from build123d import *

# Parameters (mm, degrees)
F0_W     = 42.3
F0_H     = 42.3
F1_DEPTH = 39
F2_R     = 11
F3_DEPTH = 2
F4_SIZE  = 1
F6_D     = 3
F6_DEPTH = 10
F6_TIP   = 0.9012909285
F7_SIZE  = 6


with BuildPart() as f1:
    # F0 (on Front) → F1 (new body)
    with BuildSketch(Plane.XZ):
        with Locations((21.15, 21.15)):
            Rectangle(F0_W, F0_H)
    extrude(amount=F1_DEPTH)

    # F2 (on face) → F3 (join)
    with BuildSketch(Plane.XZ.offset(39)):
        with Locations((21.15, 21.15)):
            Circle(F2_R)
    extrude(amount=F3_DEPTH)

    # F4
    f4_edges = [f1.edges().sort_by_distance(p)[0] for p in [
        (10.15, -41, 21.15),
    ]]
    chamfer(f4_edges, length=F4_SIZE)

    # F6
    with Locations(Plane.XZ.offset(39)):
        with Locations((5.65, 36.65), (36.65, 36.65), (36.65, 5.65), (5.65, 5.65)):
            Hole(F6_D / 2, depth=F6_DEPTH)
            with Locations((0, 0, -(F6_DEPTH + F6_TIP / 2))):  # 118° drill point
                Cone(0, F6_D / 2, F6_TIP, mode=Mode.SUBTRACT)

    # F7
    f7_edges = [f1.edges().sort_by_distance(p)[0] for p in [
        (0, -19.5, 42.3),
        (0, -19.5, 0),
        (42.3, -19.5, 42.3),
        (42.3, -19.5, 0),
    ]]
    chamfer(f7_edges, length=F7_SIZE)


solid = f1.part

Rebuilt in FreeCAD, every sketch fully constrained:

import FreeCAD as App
import Part
import Sketcher


def edges_at(feature, points):
    """Names of the edges that pass closest to the given points."""
    edges = feature.Shape.Edges
    near = lambda p: min(range(len(edges)), key=lambda i: edges[i].distToShape(Part.Vertex(*p))[0])
    return sorted({f"Edge{near(p) + 1}" for p in points})

doc = App.newDocument("Part")
body = doc.addObject("PartDesign::Body", "Body")

# Sketch on XZ plane
sketch1 = body.newObject("Sketcher::SketchObject", "Sketch")
sketch1.AttachmentSupport = (doc.getObject("XZ_Plane"), [""])
sketch1.MapMode = "FlatFace"
sketch1.addGeometry([
    Part.LineSegment(App.Vector(0, 42, 0), App.Vector(0, 0, 0)),
    Part.LineSegment(App.Vector(0, 0, 0), App.Vector(42, 0, 0)),
    Part.LineSegment(App.Vector(42, 0, 0), App.Vector(42, 42, 0)),
    Part.LineSegment(App.Vector(42, 42, 0), App.Vector(0, 42, 0)),
], False)
sketch1.addConstraint([
    Sketcher.Constraint("Coincident", 0, 2, 1, 1),
    Sketcher.Constraint("Coincident", 1, 2, 2, 1),
    Sketcher.Constraint("Coincident", 2, 2, 3, 1),
    Sketcher.Constraint("Coincident", 3, 2, 0, 1),
    Sketcher.Constraint("Vertical", 0),
    Sketcher.Constraint("Horizontal", 1),
    Sketcher.Constraint("Vertical", 2),
    Sketcher.Constraint("Horizontal", 3),
    Sketcher.Constraint("Coincident", 0, 2, -1, 1),
    Sketcher.Constraint("Equal", 3, 0),
    Sketcher.Constraint("DistanceX", 1, 1, 1, 2, 42.3),
])
pad1 = body.newObject("PartDesign::Pad", "Pad")
pad1.Profile = sketch1
pad1.Length = 39

# Sketch on XZ plane
sketch2 = body.newObject("Sketcher::SketchObject", "Sketch001")
sketch2.AttachmentSupport = (doc.getObject("XZ_Plane"), [""])
sketch2.MapMode = "FlatFace"
sketch2.AttachmentOffset = App.Placement(App.Vector(0, 0, 39), App.Rotation())
sketch2.addGeometry(Part.Circle(App.Vector(21, 21, 0), App.Vector(0, 0, 1), 11), False)
sketch2.addConstraint([
    Sketcher.Constraint("Diameter", 0, 22.0),
    Sketcher.Constraint("DistanceX", -1, 1, 0, 3, 21.15),
    Sketcher.Constraint("DistanceY", -1, 1, 0, 3, 21.15),
])
pad2 = body.newObject("PartDesign::Pad", "Pad001")
pad2.Profile = sketch2
pad2.Length = 2
doc.recompute()

chamfer = body.newObject("PartDesign::Chamfer", "Chamfer")
chamfer.Base = (pad2, edges_at(pad2, [(10.15, -41, 21.15)]))
chamfer.Size = 1

# Sketch on XZ plane
sketch3 = body.newObject("Sketcher::SketchObject", "Sketch002")
sketch3.AttachmentSupport = (doc.getObject("XZ_Plane"), [""])
sketch3.MapMode = "FlatFace"
sketch3.AttachmentOffset = App.Placement(App.Vector(0, 0, 39), App.Rotation())
sketch3.addGeometry([
    Part.Circle(App.Vector(5.7, 36.6, 0), App.Vector(0, 0, 1), 1.5),
    Part.Circle(App.Vector(36.6, 36.6, 0), App.Vector(0, 0, 1), 1.5),
    Part.Circle(App.Vector(36.6, 5.7, 0), App.Vector(0, 0, 1), 1.5),
    Part.Circle(App.Vector(5.7, 5.7, 0), App.Vector(0, 0, 1), 1.5),
], False)
sketch3.addConstraint([
    Sketcher.Constraint("Equal", 0, 1),
    Sketcher.Constraint("Equal", 1, 2),
    Sketcher.Constraint("Equal", 2, 3),
    Sketcher.Constraint("Horizontal", 0, 3, 1, 3),
    Sketcher.Constraint("Horizontal", 2, 3, 3, 3),
    Sketcher.Constraint("Vertical", 1, 3, 2, 3),
    Sketcher.Constraint("Vertical", 0, 3, 3, 3),
    Sketcher.Constraint("Diameter", 0, 3.0),
    Sketcher.Constraint("DistanceX", 0, 3, 1, 3, 31.0),
    Sketcher.Constraint("DistanceY", 2, 3, 1, 3, 31.0),
    Sketcher.Constraint("DistanceX", -1, 1, 0, 3, 5.65),
    Sketcher.Constraint("DistanceY", -1, 1, 0, 3, 36.65),
])
doc.recompute()
hole = body.newObject("PartDesign::Hole", "Hole")
hole.Profile = sketch3
hole.ThreadType = "None"
hole.Diameter = 3
hole.DepthType = "Dimension"
hole.Depth = 10
hole.DrillPoint = "Angled"
hole.DrillPointAngle = 118
doc.recompute()

chamfer2 = body.newObject("PartDesign::Chamfer", "Chamfer001")
chamfer2.Base = (hole, edges_at(hole, [
    (0, -19.5, 42.3),
    (0, -19.5, 0),
    (42.3, -19.5, 42.3),
    (42.3, -19.5, 0),
]))
chamfer2.Size = 6

doc.recompute()
